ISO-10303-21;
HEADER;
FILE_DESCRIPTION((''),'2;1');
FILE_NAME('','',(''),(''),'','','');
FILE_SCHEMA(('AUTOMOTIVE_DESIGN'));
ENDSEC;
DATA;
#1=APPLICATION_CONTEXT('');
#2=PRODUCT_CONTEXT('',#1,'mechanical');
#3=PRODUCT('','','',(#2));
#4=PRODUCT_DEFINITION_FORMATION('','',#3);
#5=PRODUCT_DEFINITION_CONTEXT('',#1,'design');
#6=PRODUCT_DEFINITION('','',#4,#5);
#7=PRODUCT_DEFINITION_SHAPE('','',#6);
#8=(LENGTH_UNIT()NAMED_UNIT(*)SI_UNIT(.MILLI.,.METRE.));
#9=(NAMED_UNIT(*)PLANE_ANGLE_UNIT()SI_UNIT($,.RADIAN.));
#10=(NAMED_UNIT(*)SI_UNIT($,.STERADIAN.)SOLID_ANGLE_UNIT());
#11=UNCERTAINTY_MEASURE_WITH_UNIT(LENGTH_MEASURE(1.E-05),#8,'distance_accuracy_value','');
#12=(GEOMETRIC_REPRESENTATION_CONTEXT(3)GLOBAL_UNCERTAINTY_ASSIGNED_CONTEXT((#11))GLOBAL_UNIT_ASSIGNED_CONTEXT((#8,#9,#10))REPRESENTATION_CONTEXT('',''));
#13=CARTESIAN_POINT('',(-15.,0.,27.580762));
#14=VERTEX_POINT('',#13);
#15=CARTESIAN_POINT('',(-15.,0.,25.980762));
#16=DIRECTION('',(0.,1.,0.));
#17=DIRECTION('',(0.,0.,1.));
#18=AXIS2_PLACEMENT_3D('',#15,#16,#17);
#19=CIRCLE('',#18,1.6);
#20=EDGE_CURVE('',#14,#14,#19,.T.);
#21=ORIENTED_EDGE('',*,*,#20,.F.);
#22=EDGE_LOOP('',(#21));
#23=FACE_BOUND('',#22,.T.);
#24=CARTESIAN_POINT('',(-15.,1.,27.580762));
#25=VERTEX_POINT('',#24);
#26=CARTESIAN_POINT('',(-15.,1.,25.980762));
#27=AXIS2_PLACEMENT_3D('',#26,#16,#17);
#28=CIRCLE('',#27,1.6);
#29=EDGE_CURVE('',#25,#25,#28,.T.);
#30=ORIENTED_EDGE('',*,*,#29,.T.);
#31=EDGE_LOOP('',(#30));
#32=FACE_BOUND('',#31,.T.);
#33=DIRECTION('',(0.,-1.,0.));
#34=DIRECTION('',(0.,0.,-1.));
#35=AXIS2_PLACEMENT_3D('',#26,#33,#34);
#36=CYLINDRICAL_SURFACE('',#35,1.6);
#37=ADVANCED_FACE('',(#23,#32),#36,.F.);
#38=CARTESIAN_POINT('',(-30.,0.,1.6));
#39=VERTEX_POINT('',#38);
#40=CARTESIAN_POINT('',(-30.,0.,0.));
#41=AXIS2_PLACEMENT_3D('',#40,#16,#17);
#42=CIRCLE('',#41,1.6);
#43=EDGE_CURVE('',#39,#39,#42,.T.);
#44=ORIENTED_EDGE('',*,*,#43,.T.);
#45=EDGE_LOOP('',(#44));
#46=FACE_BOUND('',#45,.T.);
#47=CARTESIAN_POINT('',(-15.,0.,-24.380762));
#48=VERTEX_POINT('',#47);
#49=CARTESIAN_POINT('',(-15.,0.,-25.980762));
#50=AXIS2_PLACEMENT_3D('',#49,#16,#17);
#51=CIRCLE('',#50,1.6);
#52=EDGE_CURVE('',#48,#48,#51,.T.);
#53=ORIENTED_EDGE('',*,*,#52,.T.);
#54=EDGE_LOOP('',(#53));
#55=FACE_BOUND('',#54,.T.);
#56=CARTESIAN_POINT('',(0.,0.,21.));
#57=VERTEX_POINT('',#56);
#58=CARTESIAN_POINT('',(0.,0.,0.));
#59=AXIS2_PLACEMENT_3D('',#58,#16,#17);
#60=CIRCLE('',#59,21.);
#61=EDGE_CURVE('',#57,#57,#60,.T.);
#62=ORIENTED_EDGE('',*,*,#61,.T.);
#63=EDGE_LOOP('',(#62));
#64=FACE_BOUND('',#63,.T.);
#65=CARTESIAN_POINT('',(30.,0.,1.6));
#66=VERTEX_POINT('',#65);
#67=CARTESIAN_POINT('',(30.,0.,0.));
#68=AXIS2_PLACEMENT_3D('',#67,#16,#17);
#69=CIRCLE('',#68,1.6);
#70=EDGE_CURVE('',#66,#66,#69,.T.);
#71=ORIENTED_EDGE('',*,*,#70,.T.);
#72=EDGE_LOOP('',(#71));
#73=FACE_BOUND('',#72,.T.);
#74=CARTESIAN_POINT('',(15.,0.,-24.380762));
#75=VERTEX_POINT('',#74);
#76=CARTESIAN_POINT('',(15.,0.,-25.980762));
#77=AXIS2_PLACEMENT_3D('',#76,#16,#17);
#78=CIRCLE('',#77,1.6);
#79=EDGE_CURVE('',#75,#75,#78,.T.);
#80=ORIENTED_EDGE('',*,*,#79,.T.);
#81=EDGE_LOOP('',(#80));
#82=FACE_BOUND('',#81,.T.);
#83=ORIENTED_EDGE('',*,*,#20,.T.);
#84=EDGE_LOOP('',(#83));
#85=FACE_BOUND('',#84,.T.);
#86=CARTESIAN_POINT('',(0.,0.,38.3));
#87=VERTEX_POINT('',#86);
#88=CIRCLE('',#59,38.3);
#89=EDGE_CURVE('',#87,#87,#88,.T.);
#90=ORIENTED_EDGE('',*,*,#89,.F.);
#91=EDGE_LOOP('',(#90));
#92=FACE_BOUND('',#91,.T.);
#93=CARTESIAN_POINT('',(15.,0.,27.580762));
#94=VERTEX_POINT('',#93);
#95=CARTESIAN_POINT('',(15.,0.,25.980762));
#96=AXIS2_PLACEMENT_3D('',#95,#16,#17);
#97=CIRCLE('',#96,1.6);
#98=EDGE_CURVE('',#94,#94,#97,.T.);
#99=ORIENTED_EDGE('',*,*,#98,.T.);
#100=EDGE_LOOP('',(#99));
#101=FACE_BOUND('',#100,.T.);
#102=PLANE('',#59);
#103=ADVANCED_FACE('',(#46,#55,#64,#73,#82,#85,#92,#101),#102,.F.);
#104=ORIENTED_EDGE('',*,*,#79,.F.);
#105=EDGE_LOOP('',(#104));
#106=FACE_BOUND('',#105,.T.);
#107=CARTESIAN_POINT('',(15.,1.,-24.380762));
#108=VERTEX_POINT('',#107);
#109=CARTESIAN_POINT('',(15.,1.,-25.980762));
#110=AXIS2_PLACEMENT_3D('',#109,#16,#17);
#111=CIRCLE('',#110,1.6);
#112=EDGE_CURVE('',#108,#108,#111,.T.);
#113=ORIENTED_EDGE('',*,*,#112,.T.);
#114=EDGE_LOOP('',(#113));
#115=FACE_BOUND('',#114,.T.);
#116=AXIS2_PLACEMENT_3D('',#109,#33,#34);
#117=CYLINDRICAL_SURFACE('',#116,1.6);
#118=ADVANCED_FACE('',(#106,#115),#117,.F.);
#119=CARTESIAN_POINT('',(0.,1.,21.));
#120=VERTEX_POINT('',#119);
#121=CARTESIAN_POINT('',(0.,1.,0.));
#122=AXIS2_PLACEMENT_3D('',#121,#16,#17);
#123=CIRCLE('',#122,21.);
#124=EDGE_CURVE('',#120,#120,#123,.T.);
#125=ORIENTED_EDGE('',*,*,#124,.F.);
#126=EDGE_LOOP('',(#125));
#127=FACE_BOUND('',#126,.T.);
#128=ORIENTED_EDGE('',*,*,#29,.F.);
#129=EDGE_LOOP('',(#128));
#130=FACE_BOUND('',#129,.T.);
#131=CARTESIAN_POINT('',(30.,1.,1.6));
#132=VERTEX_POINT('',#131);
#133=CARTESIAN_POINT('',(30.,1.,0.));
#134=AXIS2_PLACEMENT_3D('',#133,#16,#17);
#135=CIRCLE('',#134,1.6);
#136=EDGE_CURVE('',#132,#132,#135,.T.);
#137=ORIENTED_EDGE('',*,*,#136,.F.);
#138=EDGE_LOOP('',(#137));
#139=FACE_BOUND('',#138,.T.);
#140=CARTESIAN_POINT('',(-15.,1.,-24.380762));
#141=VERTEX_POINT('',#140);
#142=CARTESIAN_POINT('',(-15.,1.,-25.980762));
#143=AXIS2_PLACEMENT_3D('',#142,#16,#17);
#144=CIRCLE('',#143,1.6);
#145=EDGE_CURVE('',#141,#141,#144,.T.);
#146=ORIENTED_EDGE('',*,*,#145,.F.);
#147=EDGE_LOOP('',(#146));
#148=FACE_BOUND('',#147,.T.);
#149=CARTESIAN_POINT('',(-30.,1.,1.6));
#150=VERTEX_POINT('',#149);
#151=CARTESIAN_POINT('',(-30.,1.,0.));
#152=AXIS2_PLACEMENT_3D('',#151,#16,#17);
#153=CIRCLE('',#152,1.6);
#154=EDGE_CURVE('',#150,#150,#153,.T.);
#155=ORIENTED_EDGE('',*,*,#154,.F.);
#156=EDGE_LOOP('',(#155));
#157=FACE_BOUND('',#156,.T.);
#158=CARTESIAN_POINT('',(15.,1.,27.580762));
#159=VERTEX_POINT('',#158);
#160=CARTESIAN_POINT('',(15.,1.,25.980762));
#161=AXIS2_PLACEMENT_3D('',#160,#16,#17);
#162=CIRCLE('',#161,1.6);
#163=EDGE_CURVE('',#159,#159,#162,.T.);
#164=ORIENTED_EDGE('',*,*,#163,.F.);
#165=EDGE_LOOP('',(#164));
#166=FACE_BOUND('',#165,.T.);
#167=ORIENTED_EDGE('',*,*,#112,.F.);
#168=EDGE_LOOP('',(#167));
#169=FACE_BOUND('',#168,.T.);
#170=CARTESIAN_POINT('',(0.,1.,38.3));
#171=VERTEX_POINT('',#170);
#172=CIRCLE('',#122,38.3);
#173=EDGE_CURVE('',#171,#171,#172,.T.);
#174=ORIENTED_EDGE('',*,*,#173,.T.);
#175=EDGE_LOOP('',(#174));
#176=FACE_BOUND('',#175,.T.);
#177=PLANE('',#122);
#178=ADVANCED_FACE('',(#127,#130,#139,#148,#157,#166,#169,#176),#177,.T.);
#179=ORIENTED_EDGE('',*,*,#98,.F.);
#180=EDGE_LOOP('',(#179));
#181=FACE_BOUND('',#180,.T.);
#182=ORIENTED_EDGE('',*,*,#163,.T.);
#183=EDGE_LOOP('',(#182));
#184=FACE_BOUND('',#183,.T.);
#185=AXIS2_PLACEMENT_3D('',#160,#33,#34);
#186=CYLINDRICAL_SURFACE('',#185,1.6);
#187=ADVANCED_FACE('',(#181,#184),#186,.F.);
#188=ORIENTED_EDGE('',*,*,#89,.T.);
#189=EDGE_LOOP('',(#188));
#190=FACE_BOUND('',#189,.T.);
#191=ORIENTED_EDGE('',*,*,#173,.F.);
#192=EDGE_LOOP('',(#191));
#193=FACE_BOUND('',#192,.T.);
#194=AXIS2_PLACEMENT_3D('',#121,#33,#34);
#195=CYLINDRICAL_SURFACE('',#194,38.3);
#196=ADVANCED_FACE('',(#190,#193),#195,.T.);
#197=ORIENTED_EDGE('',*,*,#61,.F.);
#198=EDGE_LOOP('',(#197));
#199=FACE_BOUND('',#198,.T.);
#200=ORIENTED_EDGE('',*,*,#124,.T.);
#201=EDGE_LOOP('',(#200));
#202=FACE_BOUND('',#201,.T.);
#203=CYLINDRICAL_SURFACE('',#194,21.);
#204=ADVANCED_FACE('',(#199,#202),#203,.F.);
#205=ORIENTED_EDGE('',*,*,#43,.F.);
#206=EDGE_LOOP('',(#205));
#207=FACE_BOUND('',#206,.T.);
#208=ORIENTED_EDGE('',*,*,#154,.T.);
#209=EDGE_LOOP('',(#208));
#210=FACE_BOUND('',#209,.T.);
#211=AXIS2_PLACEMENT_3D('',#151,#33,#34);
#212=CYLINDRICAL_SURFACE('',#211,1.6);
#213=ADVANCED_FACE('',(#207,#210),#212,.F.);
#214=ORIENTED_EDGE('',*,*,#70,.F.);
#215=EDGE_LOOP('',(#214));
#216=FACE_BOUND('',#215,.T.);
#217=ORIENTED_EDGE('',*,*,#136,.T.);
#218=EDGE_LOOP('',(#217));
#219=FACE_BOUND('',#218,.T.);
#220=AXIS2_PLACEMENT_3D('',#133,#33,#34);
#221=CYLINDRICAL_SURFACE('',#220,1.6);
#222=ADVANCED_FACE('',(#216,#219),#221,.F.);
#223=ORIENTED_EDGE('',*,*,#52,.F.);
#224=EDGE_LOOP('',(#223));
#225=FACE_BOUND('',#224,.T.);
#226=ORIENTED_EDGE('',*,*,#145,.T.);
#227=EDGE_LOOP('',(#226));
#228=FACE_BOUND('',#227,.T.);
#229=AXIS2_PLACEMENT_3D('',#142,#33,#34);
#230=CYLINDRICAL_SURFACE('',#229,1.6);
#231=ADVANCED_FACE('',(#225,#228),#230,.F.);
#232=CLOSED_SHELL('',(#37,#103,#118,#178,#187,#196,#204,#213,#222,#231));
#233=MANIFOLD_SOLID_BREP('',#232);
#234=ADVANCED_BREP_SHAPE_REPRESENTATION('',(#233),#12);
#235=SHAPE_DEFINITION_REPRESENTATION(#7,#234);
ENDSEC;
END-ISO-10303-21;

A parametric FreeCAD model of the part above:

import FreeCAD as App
import Part
import Sketcher

doc = App.newDocument("Part")
params = doc.addObject("Spreadsheet::Sheet", "Params")
for row, (alias, value) in enumerate([
    ("sketch1_diameter", "42 mm"),
    ("sketch1_diameter2", "76.6 mm"),
    ("sketch1_diameter3", "3.2 mm"),
    ("pad1_length", "1 mm"),
], start=1):
    params.set(f"A{row}", alias)
    params.set(f"B{row}", "=" + value)
    params.setAlias(f"B{row}", alias)

body = doc.addObject("PartDesign::Body", "Body")

# Sketch on XZ plane
sketch1 = body.newObject("Sketcher::SketchObject", "Sketch")
sketch1.AttachmentSupport = (doc.getObject("XZ_Plane"), [""])
sketch1.MapMode = "FlatFace"
sketch1.addGeometry([
    Part.Circle(App.Vector(0, 0, 0), App.Vector(0, 0, 1), 38.3),  # 0
    Part.Circle(App.Vector(-15, -25.980762, 0), App.Vector(0, 0, 1), 1.6),  # 1
    Part.Circle(App.Vector(-30, 0, 0), App.Vector(0, 0, 1), 1.6),  # 2
    Part.Circle(App.Vector(0, 0, 0), App.Vector(0, 0, 1), 21),  # 3
    Part.Circle(App.Vector(-15, 25.980762, 0), App.Vector(0, 0, 1), 1.6),  # 4
    Part.Circle(App.Vector(15, -25.980762, 0), App.Vector(0, 0, 1), 1.6),  # 5
    Part.Circle(App.Vector(30, 0, 0), App.Vector(0, 0, 1), 1.6),  # 6
    Part.Circle(App.Vector(15, 25.980762, 0), App.Vector(0, 0, 1), 1.6),  # 7
], False)
sketch1.addConstraint([
    Sketcher.Constraint("Coincident", 0, 3, -1, 1),
    Sketcher.Constraint("Coincident", 3, 3, -1, 1),
    Sketcher.Constraint("Equal", 1, 2),
    Sketcher.Constraint("Equal", 2, 4),
    Sketcher.Constraint("Equal", 4, 5),
    Sketcher.Constraint("Equal", 5, 6),
    Sketcher.Constraint("Equal", 6, 7),
    Sketcher.Constraint("Symmetric", 4, 3, 5, 3, -1, 1),
    Sketcher.Constraint("Symmetric", 2, 3, 6, 3, -1, 1),
    Sketcher.Constraint("Symmetric", 1, 3, 7, 3, -1, 1),
    Sketcher.Constraint("Symmetric", 1, 3, 5, 3, -2),
    Sketcher.Constraint("PointOnObject", 2, 3, -1),
    Sketcher.Constraint("Diameter", 3, 42.0),
    Sketcher.Constraint("Diameter", 0, 76.6),
    Sketcher.Constraint("Diameter", 1, 3.2),
    Sketcher.Constraint("DistanceX", 1, 3, -1, 1, 15.0),
    Sketcher.Constraint("DistanceX", 2, 3, -1, 1, 30.0),
    Sketcher.Constraint("DistanceY", 1, 3, -1, 1, 25.980762),
])
sketch1.setExpression("Constraints[12]", "Params.sketch1_diameter")
sketch1.setExpression("Constraints[13]", "Params.sketch1_diameter2")
sketch1.setExpression("Constraints[14]", "Params.sketch1_diameter3")
pad1 = body.newObject("PartDesign::Pad", "Pad")
pad1.Profile = sketch1
pad1.setExpression("Length", "Params.pad1_length")
pad1.Reversed = True

doc.recompute()
